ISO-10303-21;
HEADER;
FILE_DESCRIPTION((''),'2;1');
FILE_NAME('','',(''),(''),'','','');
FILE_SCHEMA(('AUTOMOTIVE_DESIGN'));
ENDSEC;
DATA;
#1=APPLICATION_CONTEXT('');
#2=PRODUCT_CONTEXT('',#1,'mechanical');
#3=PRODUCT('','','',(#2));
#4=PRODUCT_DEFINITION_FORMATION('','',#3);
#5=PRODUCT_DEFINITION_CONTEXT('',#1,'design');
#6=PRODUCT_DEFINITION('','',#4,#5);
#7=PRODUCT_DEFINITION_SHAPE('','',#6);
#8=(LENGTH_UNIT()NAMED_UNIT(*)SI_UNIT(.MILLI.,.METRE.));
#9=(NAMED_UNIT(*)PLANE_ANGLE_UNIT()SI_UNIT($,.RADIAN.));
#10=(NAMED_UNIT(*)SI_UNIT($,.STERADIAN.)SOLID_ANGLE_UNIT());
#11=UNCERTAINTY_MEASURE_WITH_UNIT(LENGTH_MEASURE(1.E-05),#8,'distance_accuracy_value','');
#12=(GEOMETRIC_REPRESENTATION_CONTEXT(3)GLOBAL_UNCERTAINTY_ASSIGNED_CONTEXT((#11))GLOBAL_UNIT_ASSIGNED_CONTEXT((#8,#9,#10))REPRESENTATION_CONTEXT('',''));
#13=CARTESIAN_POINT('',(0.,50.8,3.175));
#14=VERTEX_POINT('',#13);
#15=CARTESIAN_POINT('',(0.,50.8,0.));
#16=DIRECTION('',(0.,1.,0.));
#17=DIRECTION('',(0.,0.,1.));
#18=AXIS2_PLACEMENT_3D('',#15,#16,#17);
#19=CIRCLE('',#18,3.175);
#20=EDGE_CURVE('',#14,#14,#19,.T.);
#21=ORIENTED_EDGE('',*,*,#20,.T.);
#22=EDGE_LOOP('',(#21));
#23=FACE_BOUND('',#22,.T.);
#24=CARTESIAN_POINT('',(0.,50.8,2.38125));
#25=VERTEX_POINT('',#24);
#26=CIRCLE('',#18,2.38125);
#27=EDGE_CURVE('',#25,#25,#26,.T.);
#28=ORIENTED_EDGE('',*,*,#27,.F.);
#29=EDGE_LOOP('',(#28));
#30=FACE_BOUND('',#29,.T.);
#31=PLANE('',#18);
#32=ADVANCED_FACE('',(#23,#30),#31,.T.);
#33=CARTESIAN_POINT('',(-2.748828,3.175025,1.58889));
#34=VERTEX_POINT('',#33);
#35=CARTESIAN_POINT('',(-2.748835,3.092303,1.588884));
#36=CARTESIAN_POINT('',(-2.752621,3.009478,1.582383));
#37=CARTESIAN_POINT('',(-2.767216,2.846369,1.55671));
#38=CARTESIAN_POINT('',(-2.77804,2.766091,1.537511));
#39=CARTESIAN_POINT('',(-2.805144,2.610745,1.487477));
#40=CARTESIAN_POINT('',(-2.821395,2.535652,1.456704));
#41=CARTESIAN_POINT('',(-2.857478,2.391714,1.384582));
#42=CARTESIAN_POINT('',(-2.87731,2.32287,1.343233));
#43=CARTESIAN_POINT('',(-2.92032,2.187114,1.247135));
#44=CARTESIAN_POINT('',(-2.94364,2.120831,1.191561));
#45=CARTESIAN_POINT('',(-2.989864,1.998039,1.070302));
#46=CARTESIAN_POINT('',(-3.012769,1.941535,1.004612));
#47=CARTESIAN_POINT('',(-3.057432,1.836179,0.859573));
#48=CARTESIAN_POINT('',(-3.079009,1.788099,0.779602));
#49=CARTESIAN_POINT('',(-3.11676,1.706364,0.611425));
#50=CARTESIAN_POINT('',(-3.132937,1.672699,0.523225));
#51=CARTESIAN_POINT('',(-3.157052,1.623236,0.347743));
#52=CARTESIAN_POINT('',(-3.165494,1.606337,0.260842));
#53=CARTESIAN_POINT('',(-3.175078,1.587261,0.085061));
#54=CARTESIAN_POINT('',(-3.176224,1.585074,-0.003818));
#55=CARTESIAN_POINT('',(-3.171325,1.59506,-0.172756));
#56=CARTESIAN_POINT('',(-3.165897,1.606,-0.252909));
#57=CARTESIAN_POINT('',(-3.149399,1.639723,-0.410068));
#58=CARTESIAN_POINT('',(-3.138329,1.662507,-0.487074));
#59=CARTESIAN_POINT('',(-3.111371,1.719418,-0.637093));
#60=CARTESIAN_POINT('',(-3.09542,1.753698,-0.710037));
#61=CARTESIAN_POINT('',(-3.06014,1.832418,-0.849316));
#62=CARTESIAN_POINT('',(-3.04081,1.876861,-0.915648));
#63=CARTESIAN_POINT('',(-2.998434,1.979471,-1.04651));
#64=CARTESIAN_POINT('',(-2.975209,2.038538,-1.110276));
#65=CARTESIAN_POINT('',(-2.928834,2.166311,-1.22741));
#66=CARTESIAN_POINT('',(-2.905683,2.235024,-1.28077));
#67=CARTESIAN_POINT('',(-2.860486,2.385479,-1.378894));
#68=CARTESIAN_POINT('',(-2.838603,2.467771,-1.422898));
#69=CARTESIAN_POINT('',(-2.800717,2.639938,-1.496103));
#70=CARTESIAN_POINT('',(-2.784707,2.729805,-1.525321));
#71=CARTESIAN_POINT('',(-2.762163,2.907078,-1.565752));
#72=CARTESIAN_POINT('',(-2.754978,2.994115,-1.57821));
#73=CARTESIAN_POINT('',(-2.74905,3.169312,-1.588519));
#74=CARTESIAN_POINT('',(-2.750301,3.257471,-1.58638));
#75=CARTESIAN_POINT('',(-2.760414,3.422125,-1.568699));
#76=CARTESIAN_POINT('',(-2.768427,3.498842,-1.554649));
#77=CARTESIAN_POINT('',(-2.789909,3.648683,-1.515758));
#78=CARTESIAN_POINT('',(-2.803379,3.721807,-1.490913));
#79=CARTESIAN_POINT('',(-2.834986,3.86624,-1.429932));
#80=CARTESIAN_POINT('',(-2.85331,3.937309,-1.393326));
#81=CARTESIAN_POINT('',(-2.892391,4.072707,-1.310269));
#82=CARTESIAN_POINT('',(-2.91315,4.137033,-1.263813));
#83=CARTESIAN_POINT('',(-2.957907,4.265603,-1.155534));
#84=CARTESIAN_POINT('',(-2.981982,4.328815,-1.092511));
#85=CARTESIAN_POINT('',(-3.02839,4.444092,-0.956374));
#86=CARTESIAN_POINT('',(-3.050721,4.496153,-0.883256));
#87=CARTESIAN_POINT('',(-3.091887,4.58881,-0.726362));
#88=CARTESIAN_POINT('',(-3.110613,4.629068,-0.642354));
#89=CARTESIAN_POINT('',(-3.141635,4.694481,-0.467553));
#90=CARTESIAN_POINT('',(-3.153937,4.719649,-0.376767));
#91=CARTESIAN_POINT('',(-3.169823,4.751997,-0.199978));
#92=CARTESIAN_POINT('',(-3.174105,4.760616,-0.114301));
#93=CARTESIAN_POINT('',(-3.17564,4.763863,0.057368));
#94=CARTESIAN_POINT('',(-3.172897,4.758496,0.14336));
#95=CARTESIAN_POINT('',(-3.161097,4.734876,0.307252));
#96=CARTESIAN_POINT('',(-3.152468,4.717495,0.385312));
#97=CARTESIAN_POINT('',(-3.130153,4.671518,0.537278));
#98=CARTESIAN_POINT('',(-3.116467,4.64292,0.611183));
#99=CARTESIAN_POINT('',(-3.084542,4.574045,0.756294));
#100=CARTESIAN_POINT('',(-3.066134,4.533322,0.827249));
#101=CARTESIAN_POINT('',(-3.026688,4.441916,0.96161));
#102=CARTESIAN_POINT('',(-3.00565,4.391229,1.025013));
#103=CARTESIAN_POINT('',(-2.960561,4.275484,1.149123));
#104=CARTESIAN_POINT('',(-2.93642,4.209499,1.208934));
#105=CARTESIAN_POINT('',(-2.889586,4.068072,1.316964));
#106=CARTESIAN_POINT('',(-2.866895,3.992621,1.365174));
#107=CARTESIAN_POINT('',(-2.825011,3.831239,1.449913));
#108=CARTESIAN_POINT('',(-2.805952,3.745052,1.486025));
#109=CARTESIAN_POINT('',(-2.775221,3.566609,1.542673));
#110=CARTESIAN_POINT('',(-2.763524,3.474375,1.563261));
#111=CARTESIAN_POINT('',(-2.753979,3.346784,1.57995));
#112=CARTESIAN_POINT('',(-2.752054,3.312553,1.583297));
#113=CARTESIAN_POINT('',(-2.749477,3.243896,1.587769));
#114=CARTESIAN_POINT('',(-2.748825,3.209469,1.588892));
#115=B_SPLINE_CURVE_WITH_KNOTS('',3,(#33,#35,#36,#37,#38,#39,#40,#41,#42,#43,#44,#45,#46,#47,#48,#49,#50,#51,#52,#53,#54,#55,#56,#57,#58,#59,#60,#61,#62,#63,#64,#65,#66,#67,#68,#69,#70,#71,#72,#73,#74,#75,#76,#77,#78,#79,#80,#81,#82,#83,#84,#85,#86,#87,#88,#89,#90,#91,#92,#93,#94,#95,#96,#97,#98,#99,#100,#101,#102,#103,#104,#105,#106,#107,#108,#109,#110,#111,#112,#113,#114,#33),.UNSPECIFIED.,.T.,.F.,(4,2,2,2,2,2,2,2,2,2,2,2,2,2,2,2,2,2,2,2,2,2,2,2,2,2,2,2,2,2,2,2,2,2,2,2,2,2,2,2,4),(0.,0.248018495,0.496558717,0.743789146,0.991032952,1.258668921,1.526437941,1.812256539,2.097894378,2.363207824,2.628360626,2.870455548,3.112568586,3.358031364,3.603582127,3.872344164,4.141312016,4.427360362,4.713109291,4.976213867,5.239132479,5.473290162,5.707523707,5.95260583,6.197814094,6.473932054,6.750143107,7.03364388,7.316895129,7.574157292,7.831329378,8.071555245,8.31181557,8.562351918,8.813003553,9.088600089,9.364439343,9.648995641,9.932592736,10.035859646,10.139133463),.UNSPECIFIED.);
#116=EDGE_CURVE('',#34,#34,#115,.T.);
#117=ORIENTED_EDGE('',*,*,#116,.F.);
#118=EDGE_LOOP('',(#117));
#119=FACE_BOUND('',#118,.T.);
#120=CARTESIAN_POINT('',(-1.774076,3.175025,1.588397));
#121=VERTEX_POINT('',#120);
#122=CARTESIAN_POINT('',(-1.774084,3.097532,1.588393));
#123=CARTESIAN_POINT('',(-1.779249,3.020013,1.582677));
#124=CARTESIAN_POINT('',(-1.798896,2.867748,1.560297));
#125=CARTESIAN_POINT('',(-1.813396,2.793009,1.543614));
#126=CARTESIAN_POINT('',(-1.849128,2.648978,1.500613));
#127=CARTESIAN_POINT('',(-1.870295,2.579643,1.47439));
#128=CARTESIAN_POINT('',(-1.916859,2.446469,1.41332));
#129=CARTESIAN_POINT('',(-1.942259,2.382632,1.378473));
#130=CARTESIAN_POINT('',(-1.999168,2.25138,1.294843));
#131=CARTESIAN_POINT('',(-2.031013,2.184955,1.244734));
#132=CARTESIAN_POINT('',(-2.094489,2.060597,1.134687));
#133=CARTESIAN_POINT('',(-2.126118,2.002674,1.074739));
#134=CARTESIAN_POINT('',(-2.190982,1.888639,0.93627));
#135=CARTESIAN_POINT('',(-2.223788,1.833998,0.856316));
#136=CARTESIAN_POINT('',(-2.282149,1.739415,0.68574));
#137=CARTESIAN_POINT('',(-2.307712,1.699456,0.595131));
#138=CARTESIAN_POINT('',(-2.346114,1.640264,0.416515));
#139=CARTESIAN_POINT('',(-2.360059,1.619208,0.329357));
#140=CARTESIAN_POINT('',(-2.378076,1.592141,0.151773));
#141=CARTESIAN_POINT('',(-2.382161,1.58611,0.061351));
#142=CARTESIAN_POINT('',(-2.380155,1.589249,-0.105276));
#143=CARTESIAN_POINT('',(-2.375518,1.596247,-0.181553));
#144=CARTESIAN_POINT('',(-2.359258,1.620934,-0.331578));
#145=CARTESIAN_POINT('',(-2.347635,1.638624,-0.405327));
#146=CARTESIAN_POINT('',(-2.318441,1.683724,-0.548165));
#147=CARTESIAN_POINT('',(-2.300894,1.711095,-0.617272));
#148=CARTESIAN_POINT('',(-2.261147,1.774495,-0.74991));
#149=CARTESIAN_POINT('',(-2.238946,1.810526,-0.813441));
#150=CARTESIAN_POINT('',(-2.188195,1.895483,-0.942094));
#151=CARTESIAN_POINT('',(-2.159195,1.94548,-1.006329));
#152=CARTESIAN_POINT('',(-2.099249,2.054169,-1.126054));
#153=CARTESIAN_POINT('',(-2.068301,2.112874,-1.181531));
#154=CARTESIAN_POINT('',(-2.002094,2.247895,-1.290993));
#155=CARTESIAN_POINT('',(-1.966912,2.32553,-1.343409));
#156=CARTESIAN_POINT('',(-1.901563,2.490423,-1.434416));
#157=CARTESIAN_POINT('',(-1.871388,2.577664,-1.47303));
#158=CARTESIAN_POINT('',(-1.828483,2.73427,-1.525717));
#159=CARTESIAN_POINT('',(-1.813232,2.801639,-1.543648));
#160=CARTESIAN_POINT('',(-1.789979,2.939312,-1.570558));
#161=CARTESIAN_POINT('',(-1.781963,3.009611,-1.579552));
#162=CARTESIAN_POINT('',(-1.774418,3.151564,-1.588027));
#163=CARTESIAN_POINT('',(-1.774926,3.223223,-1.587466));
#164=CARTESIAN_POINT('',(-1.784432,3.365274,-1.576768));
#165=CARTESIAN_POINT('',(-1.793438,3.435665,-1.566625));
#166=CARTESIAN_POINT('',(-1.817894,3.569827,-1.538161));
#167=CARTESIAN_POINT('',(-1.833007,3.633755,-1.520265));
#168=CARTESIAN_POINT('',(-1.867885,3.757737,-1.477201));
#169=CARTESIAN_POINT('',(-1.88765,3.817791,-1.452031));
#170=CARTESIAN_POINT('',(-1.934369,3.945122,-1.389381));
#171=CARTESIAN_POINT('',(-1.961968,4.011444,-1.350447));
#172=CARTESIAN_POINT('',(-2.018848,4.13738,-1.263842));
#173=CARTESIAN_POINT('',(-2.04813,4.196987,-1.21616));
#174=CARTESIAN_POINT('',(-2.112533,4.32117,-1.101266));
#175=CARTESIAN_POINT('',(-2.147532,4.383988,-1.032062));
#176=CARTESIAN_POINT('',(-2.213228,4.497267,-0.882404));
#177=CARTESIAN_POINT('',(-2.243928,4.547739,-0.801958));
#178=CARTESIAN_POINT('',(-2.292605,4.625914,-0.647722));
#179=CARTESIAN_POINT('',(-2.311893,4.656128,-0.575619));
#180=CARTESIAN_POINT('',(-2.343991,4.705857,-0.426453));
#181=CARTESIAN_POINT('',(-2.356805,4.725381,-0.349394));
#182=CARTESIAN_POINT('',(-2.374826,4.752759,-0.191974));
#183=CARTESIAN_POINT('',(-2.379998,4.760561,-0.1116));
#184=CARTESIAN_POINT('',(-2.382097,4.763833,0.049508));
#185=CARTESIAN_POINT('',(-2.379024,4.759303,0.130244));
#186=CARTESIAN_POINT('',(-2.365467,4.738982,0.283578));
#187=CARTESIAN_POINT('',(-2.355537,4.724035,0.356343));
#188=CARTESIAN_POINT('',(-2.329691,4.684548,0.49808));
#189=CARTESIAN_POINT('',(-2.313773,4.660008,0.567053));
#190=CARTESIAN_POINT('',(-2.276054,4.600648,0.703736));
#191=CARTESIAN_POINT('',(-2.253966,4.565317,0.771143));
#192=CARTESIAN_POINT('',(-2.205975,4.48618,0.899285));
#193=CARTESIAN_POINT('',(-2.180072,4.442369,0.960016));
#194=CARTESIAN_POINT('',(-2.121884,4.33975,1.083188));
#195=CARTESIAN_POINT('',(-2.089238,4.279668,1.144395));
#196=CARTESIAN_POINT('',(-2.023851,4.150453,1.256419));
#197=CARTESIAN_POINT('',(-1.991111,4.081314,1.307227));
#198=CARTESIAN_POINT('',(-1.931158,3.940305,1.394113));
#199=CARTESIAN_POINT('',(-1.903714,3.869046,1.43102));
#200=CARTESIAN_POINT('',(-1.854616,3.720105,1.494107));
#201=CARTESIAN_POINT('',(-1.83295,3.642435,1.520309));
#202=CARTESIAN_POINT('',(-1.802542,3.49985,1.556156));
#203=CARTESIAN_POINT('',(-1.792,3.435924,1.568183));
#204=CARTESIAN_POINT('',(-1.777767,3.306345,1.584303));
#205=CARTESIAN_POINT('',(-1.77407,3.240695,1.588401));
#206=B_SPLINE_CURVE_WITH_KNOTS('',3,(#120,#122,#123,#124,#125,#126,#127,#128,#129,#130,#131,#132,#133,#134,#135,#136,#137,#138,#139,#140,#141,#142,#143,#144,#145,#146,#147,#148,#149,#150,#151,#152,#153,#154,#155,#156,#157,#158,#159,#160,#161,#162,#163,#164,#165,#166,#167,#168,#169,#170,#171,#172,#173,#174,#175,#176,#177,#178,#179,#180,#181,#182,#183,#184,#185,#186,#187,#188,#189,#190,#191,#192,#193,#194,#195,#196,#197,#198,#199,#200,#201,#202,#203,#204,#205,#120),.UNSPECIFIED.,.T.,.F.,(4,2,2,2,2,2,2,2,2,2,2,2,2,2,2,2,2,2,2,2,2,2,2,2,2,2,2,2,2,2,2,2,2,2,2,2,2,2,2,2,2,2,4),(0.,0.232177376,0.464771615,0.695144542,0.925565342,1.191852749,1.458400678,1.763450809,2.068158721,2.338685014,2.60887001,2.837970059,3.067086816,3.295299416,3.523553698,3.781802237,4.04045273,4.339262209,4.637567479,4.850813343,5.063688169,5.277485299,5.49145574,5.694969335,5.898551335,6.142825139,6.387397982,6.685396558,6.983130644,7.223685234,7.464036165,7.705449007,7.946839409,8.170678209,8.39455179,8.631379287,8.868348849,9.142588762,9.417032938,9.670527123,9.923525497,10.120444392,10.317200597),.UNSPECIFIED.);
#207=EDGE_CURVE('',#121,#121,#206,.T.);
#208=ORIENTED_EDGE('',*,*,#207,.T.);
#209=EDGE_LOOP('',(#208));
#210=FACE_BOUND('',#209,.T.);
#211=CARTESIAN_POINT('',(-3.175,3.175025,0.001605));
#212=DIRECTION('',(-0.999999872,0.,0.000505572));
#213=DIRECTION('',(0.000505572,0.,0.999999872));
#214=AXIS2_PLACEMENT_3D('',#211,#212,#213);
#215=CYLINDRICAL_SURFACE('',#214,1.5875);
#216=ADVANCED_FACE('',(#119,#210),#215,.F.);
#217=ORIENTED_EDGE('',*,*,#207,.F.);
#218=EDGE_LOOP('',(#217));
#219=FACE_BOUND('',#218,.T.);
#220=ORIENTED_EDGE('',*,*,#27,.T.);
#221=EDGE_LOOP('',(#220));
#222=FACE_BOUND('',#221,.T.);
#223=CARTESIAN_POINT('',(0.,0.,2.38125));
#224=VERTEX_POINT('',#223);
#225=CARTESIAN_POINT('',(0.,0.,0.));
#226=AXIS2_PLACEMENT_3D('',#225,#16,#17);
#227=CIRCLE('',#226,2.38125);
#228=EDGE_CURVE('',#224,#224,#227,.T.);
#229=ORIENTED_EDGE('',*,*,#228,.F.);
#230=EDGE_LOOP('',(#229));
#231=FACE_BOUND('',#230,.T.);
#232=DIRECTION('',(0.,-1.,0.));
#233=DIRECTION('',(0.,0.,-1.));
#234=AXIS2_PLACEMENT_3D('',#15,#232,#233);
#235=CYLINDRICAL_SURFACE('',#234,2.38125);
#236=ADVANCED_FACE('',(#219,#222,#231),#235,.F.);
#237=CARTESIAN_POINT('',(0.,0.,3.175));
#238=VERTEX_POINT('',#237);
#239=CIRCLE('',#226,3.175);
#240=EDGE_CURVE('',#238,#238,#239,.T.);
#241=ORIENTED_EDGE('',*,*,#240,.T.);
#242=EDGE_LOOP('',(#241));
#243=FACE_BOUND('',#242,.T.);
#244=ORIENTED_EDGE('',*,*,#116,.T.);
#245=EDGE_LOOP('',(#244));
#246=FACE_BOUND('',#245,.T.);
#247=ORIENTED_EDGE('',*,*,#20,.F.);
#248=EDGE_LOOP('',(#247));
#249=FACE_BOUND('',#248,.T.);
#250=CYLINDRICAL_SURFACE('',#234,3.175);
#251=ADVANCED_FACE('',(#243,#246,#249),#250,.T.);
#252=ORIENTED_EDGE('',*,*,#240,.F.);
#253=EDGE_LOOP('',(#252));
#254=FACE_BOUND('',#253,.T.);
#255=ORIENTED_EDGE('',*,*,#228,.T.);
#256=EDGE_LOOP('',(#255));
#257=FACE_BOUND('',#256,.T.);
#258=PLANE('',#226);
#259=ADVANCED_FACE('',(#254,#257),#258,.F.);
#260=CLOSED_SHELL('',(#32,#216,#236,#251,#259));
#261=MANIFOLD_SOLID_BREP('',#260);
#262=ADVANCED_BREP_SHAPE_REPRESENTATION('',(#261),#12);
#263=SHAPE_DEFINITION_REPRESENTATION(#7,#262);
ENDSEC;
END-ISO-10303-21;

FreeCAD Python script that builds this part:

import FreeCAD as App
import Part
import Sketcher
from FreeCAD import Vector
Q = App.Units.Quantity

doc = App.newDocument("Part")
body = doc.addObject("PartDesign::Body", "Body")

sketch1 = doc.addObject("Sketcher::SketchObject", "Sketch")
body.addObject(sketch1)
sketch1.AttachmentSupport = (doc.XZ_Plane, [""])
sketch1.MapMode = "FlatFace"
sketch1.addGeometry([
    Part.Circle(Vector(0, 0, 0), Vector(0, 0, 1), 3.175),
    Part.Circle(Vector(0, 0, 0), Vector(0, 0, 1), 2.38125),
], False)
sketch1.addConstraint([
    Sketcher.Constraint("Coincident", 0, 3, -1, 1),
    Sketcher.Constraint("Coincident", 1, 3, -1, 1),
    Sketcher.Constraint("Diameter", 0, Q("0.25 in")),
    Sketcher.Constraint("Diameter", 1, Q("0.1875 in")),
])
pad1 = doc.addObject("PartDesign::Pad", "Pad")
body.addObject(pad1)
pad1.Profile = sketch1
pad1.Length = Q("2 in")
pad1.Reversed = True

sketch2 = doc.addObject("Sketcher::SketchObject", "Sketch001")
body.addObject(sketch2)
sketch2.Placement = App.Placement(Vector(-3.175, 0, 0.001605), App.Rotation(Vector(-0.000505572, 0, -0.999999872), Vector(0, -1, 0), Vector(-0.999999872, 0, 0.000505572), "ZXY"))
sketch2.addGeometry(Part.Circle(Vector(0, -3.175025, 0), Vector(0, 0, 1), 1.5875), False)
sketch2.addConstraint([
    Sketcher.Constraint("PointOnObject", 0, 3, -2),
    Sketcher.Constraint("Diameter", 0, Q("0.125 in")),
    Sketcher.Constraint("DistanceY", 0, 3, -1, 1, 3.175025),
])
doc.recompute()
hole = doc.addObject("PartDesign::Hole", "Hole")
body.addObject(hole)
hole.Profile = sketch2
hole.ThreadType = "None"
hole.Diameter = Q("0.125 in")
hole.DepthType = "Dimension"
hole.Depth = 3.18
hole.DrillPoint = "Angled"
hole.DrillPointAngle = 118

doc.recompute()
